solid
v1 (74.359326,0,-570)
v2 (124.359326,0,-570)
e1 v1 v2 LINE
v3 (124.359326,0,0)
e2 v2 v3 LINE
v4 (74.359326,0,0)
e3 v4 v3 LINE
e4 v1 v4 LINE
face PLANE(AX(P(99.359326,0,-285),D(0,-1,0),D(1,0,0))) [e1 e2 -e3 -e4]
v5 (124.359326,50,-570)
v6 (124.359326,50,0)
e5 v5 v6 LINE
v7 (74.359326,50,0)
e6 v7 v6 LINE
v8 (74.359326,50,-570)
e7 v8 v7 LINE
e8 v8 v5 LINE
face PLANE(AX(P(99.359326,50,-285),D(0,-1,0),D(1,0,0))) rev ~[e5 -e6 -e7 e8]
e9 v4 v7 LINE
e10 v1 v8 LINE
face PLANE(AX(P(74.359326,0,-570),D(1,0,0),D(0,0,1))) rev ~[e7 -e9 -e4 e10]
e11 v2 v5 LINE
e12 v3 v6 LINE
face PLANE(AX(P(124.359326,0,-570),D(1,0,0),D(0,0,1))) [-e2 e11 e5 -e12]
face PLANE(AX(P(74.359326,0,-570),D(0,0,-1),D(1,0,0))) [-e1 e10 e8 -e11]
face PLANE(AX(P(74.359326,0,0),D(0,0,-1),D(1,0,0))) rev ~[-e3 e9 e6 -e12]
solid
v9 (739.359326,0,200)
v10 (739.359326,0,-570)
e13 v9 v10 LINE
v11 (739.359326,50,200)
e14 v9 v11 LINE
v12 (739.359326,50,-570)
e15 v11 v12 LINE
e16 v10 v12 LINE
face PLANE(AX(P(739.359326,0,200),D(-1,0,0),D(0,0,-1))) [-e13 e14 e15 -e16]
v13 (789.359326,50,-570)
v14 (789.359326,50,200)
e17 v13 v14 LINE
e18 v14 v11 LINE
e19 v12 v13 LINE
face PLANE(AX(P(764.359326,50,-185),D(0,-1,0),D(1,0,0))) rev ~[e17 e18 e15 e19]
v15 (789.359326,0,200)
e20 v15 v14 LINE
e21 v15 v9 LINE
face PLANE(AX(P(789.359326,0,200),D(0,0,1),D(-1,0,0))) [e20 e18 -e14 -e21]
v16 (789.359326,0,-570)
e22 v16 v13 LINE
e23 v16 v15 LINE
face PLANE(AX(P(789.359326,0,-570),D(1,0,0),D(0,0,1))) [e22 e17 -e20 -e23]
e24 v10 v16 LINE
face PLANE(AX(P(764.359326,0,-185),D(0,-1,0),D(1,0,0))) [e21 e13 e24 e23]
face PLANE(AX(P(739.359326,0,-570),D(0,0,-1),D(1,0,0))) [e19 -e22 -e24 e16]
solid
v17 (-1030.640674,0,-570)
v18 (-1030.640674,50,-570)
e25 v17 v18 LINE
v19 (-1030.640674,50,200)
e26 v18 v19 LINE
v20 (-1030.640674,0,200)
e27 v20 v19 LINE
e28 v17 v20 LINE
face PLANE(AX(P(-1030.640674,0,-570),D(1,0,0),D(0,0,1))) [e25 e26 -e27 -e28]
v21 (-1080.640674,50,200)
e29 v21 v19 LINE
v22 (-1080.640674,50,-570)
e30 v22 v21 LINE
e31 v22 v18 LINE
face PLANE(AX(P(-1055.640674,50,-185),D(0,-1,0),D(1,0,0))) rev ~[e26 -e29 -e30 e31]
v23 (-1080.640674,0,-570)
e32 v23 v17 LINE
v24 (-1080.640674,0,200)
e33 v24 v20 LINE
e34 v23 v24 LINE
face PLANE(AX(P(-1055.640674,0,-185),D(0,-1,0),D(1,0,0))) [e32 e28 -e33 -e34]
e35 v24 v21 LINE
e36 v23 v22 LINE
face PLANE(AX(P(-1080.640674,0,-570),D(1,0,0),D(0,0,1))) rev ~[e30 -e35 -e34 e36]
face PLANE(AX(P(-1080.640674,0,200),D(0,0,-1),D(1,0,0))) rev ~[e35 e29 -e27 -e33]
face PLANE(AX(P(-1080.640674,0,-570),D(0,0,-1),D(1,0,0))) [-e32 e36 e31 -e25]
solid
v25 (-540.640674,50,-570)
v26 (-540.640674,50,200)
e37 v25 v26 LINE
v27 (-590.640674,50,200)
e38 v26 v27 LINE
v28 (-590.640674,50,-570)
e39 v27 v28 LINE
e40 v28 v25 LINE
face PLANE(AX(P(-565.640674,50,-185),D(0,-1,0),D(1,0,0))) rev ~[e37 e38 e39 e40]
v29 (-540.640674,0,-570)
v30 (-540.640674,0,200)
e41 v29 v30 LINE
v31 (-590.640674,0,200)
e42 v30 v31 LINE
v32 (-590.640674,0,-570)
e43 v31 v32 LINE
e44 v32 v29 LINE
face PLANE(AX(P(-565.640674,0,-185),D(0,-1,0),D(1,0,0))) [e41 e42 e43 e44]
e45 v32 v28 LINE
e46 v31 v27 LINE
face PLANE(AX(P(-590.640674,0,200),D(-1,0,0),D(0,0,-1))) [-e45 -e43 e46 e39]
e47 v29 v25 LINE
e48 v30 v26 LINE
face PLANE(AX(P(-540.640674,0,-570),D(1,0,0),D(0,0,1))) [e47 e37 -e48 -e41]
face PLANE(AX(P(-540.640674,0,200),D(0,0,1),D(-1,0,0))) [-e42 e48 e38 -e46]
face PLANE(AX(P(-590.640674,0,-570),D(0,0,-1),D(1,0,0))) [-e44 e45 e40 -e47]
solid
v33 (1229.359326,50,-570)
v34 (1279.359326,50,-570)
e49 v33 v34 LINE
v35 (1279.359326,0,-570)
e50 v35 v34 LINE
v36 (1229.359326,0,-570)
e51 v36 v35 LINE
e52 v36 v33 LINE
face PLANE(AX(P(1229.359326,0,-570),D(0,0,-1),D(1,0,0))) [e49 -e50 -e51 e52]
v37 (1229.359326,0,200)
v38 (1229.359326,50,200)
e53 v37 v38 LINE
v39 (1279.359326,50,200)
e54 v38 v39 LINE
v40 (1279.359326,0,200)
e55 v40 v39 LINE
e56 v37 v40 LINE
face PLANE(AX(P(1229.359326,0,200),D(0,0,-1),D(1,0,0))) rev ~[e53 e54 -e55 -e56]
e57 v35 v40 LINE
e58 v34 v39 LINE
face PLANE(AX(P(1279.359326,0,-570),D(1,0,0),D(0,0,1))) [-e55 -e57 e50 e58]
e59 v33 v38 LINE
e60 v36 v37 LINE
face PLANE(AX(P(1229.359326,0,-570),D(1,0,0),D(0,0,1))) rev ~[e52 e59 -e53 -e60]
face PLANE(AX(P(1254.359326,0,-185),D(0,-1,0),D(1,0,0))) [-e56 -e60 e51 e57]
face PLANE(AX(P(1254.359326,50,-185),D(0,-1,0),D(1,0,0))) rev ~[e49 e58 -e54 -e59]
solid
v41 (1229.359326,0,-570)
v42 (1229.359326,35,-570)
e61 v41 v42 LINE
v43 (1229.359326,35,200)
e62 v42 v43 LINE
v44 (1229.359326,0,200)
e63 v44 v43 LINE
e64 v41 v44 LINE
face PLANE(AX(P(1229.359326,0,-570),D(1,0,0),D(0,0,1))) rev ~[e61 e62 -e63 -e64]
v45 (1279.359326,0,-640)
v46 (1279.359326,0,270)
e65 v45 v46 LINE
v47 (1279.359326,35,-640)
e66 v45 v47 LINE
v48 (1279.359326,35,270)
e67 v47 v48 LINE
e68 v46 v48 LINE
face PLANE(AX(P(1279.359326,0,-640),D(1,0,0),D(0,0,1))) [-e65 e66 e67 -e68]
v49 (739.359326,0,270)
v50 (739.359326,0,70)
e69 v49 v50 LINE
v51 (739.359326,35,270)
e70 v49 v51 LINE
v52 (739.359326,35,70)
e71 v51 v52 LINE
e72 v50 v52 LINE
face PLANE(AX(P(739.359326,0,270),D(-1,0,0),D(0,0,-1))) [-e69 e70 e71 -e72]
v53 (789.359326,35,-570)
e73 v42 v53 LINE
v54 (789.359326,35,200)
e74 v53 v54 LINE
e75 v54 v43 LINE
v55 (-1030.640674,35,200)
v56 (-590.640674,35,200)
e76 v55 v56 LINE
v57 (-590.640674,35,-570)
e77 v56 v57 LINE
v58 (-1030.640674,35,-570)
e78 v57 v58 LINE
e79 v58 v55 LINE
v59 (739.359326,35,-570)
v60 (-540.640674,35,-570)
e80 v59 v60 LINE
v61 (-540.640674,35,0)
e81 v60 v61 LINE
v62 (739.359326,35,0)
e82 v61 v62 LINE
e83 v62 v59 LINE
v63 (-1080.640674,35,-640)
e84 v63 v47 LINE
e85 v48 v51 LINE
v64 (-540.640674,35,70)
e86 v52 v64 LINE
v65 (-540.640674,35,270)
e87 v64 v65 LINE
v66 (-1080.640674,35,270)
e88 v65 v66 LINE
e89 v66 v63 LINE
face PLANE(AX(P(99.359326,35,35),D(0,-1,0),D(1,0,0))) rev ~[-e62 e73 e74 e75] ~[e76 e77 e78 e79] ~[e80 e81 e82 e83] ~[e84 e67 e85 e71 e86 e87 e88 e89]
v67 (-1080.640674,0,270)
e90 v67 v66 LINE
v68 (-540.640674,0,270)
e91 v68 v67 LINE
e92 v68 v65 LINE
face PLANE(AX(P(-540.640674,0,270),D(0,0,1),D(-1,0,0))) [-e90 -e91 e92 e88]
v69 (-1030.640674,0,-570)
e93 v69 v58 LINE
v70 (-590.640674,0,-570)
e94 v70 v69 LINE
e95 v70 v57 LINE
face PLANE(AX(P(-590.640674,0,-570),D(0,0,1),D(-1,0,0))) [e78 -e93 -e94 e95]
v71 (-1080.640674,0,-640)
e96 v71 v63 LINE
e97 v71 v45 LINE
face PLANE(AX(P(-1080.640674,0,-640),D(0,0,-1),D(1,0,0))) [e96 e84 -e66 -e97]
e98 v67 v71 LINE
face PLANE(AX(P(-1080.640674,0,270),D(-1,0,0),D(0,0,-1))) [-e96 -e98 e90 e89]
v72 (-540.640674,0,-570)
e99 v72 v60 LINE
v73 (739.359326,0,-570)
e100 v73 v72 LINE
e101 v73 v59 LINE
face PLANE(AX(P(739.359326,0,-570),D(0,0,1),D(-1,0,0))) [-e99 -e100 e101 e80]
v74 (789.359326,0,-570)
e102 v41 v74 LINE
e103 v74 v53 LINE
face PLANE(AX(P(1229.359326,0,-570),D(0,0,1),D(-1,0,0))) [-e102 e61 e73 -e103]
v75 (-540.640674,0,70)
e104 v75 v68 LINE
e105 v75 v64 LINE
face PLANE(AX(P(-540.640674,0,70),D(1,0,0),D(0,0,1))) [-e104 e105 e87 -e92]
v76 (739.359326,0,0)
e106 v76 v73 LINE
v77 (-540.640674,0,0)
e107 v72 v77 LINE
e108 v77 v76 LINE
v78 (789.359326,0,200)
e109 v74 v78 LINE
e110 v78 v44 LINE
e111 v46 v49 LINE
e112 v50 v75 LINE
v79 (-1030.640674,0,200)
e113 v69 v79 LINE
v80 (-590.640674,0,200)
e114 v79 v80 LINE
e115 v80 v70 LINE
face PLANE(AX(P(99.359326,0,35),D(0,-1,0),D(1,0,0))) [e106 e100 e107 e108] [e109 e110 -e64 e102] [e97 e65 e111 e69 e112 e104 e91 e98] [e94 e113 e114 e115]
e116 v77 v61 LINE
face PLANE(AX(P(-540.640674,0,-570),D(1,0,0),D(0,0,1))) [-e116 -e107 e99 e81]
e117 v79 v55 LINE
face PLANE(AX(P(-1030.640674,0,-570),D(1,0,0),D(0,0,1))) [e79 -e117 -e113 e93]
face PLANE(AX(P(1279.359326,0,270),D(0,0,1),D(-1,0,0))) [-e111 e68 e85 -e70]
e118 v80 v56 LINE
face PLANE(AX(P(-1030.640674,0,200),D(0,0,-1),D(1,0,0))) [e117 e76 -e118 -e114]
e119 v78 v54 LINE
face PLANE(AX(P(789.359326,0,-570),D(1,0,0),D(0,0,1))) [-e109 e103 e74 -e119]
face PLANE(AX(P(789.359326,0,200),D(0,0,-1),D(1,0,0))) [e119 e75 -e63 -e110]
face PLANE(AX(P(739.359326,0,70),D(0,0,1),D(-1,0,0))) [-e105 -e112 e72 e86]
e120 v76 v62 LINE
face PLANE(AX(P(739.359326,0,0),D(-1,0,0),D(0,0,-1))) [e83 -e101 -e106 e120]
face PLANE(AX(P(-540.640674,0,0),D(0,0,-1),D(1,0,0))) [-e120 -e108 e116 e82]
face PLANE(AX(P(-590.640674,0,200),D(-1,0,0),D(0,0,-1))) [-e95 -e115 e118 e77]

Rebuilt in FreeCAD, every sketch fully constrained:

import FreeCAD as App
import Part
import Sketcher
from FreeCAD import Vector

doc = App.newDocument("Part")
body = doc.addObject("PartDesign::Body", "Body")
body.AllowCompound = True

# Sketch on XZ plane
sketch1 = doc.addObject("Sketcher::SketchObject", "Sketch")
body.addObject(sketch1)
sketch1.AttachmentSupport = (doc.XZ_Plane, [""])
sketch1.MapMode = "FlatFace"
sketch1.addGeometry([
    Part.LineSegment(Vector(74, 0, 0), Vector(74, -570, 0)),  # 0
    Part.LineSegment(Vector(74, -570, 0), Vector(124, -570, 0)),  # 1
    Part.LineSegment(Vector(124, -570, 0), Vector(124, 0, 0)),  # 2
    Part.LineSegment(Vector(124, 0, 0), Vector(74, 0, 0)),  # 3
    Part.LineSegment(Vector(739, 200, 0), Vector(739, -570, 0)),  # 4
    Part.LineSegment(Vector(739, -570, 0), Vector(789, -570, 0)),  # 5
    Part.LineSegment(Vector(789, -570, 0), Vector(789, 200, 0)),  # 6
    Part.LineSegment(Vector(789, 200, 0), Vector(739, 200, 0)),  # 7
    Part.LineSegment(Vector(1229, 200, 0), Vector(1229, -570, 0)),  # 8
    Part.LineSegment(Vector(1229, -570, 0), Vector(1279, -570, 0)),  # 9
    Part.LineSegment(Vector(1279, -570, 0), Vector(1279, 200, 0)),  # 10
    Part.LineSegment(Vector(1279, 200, 0), Vector(1229, 200, 0)),  # 11
    Part.LineSegment(Vector(-541, 200, 0), Vector(-591, 200, 0)),  # 12
    Part.LineSegment(Vector(-591, 200, 0), Vector(-591, -570, 0)),  # 13
    Part.LineSegment(Vector(-591, -570, 0), Vector(-541, -570, 0)),  # 14
    Part.LineSegment(Vector(-541, -570, 0), Vector(-541, 200, 0)),  # 15
    Part.LineSegment(Vector(-1081, 200, 0), Vector(-1081, -570, 0)),  # 16
    Part.LineSegment(Vector(-1081, -570, 0), Vector(-1031, -570, 0)),  # 17
    Part.LineSegment(Vector(-1031, -570, 0), Vector(-1031, 200, 0)),  # 18
    Part.LineSegment(Vector(-1031, 200, 0), Vector(-1081, 200, 0)),  # 19
], False)
sketch1.addConstraint([
    Sketcher.Constraint("Coincident", 0, 2, 1, 1),
    Sketcher.Constraint("Coincident", 1, 2, 2, 1),
    Sketcher.Constraint("Coincident", 2, 2, 3, 1),
    Sketcher.Constraint("Coincident", 3, 2, 0, 1),
    Sketcher.Constraint("Coincident", 4, 2, 5, 1),
    Sketcher.Constraint("Coincident", 5, 2, 6, 1),
    Sketcher.Constraint("Coincident", 6, 2, 7, 1),
    Sketcher.Constraint("Coincident", 7, 2, 4, 1),
    Sketcher.Constraint("Coincident", 8, 2, 9, 1),
    Sketcher.Constraint("Coincident", 9, 2, 10, 1),
    Sketcher.Constraint("Coincident", 10, 2, 11, 1),
    Sketcher.Constraint("Coincident", 11, 2, 8, 1),
    Sketcher.Constraint("Coincident", 12, 2, 13, 1),
    Sketcher.Constraint("Coincident", 13, 2, 14, 1),
    Sketcher.Constraint("Coincident", 14, 2, 15, 1),
    Sketcher.Constraint("Coincident", 15, 2, 12, 1),
    Sketcher.Constraint("Coincident", 16, 2, 17, 1),
    Sketcher.Constraint("Coincident", 17, 2, 18, 1),
    Sketcher.Constraint("Coincident", 18, 2, 19, 1),
    Sketcher.Constraint("Coincident", 19, 2, 16, 1),
    Sketcher.Constraint("Vertical", 0),
    Sketcher.Constraint("Horizontal", 1),
    Sketcher.Constraint("Vertical", 2),
    Sketcher.Constraint("Horizontal", 3),
    Sketcher.Constraint("Vertical", 4),
    Sketcher.Constraint("Horizontal", 5),
    Sketcher.Constraint("Vertical", 6),
    Sketcher.Constraint("Horizontal", 7),
    Sketcher.Constraint("Vertical", 8),
    Sketcher.Constraint("Horizontal", 9),
    Sketcher.Constraint("Vertical", 10),
    Sketcher.Constraint("Horizontal", 11),
    Sketcher.Constraint("Horizontal", 12),
    Sketcher.Constraint("Vertical", 13),
    Sketcher.Constraint("Horizontal", 14),
    Sketcher.Constraint("Vertical", 15),
    Sketcher.Constraint("Vertical", 16),
    Sketcher.Constraint("Horizontal", 17),
    Sketcher.Constraint("Vertical", 18),
    Sketcher.Constraint("Horizontal", 19),
    Sketcher.Constraint("PointOnObject", 2, 2, -1),
    Sketcher.Constraint("Horizontal", 1, 2, 4, 2),
    Sketcher.Constraint("Horizontal", 5, 2, 8, 2),
    Sketcher.Constraint("Horizontal", 7, 2, 10, 2),
    Sketcher.Constraint("Horizontal", 11, 2, 12, 2),
    Sketcher.Constraint("Horizontal", 9, 2, 13, 2),
    Sketcher.Constraint("Horizontal", 14, 2, 16, 2),
    Sketcher.Constraint("Horizontal", 15, 2, 18, 2),
    Sketcher.Constraint("Equal", 3, 5),
    Sketcher.Constraint("Equal", 7, 9),
    Sketcher.Constraint("Equal", 11, 12),
    Sketcher.Constraint("Equal", 14, 17),
    Sketcher.Constraint("DistanceX", 1, 1, 1, 2, 50.0),
    Sketcher.Constraint("DistanceY", 0, 2, 0, 1, 570.0),
    Sketcher.Constraint("DistanceY", 4, 2, 4, 1, 770.0),
    Sketcher.Constraint("DistanceX", 1, 2, 4, 2, 615.0),
    Sketcher.Constraint("DistanceX", 5, 2, 8, 2, 440.0),
    Sketcher.Constraint("DistanceX", 12, 2, 3, 2, 665.0),
    Sketcher.Constraint("DistanceX", 16, 2, 13, 2, 490.0),
    Sketcher.Constraint("DistanceX", -1, 1, 0, 2, 74.359326),
])
pad1 = doc.addObject("PartDesign::Pad", "Pad")
body.addObject(pad1)
pad1.Profile = sketch1
pad1.Length = 50
pad1.Reversed = True
body2 = doc.addObject("PartDesign::Body", "Body001")

# Sketch on XZ plane
sketch2 = doc.addObject("Sketcher::SketchObject", "Sketch001")
body2.addObject(sketch2)
sketch2.AttachmentSupport = (doc.getObject("XZ_Plane001"), [""])
sketch2.MapMode = "FlatFace"
sketch2.addGeometry([
    Part.LineSegment(Vector(739, 70, 0), Vector(-541, 70, 0)),  # 0
    Part.LineSegment(Vector(-541, 70, 0), Vector(-541, 270, 0)),  # 1
    Part.LineSegment(Vector(-541, 270, 0), Vector(-1081, 270, 0)),  # 2
    Part.LineSegment(Vector(-1081, 270, 0), Vector(-1081, -640, 0)),  # 3
    Part.LineSegment(Vector(-1081, -640, 0), Vector(1279, -640, 0)),  # 4
    Part.LineSegment(Vector(1279, -640, 0), Vector(1279, 270, 0)),  # 5
    Part.LineSegment(Vector(1279, 270, 0), Vector(739, 270, 0)),  # 6
    Part.LineSegment(Vector(739, 270, 0), Vector(739, 70, 0)),  # 7
    Part.LineSegment(Vector(1229, -570, 0), Vector(789, -570, 0)),  # 8
    Part.LineSegment(Vector(789, -570, 0), Vector(789, 200, 0)),  # 9
    Part.LineSegment(Vector(789, 200, 0), Vector(1229, 200, 0)),  # 10
    Part.LineSegment(Vector(1229, 200, 0), Vector(1229, -570, 0)),  # 11
    Part.LineSegment(Vector(-1031, 200, 0), Vector(-591, 200, 0)),  # 12
    Part.LineSegment(Vector(-591, 200, 0), Vector(-591, -570, 0)),  # 13
    Part.LineSegment(Vector(-591, -570, 0), Vector(-1031, -570, 0)),  # 14
    Part.LineSegment(Vector(-1031, -570, 0), Vector(-1031, 200, 0)),  # 15
    Part.LineSegment(Vector(-541, -570, 0), Vector(-541, 0, 0)),  # 16
    Part.LineSegment(Vector(-541, 0, 0), Vector(739, 0, 0)),  # 17
    Part.LineSegment(Vector(739, 0, 0), Vector(739, -570, 0)),  # 18
    Part.LineSegment(Vector(739, -570, 0), Vector(-541, -570, 0)),  # 19
], False)
sketch2.addConstraint([
    Sketcher.Constraint("Coincident", 0, 2, 1, 1),
    Sketcher.Constraint("Coincident", 1, 2, 2, 1),
    Sketcher.Constraint("Coincident", 2, 2, 3, 1),
    Sketcher.Constraint("Coincident", 3, 2, 4, 1),
    Sketcher.Constraint("Coincident", 4, 2, 5, 1),
    Sketcher.Constraint("Coincident", 5, 2, 6, 1),
    Sketcher.Constraint("Coincident", 6, 2, 7, 1),
    Sketcher.Constraint("Coincident", 7, 2, 0, 1),
    Sketcher.Constraint("Coincident", 8, 2, 9, 1),
    Sketcher.Constraint("Coincident", 9, 2, 10, 1),
    Sketcher.Constraint("Coincident", 10, 2, 11, 1),
    Sketcher.Constraint("Coincident", 11, 2, 8, 1),
    Sketcher.Constraint("Coincident", 12, 2, 13, 1),
    Sketcher.Constraint("Coincident", 13, 2, 14, 1),
    Sketcher.Constraint("Coincident", 14, 2, 15, 1),
    Sketcher.Constraint("Coincident", 15, 2, 12, 1),
    Sketcher.Constraint("Coincident", 16, 2, 17, 1),
    Sketcher.Constraint("Coincident", 17, 2, 18, 1),
    Sketcher.Constraint("Coincident", 18, 2, 19, 1),
    Sketcher.Constraint("Coincident", 19, 2, 16, 1),
    Sketcher.Constraint("Horizontal", 0),
    Sketcher.Constraint("Vertical", 1),
    Sketcher.Constraint("Horizontal", 2),
    Sketcher.Constraint("Vertical", 3),
    Sketcher.Constraint("Horizontal", 4),
    Sketcher.Constraint("Vertical", 5),
    Sketcher.Constraint("Horizontal", 6),
    Sketcher.Constraint("Vertical", 7),
    Sketcher.Constraint("Horizontal", 8),
    Sketcher.Constraint("Vertical", 9),
    Sketcher.Constraint("Horizontal", 10),
    Sketcher.Constraint("Vertical", 11),
    Sketcher.Constraint("Horizontal", 12),
    Sketcher.Constraint("Vertical", 13),
    Sketcher.Constraint("Horizontal", 14),
    Sketcher.Constraint("Vertical", 15),
    Sketcher.Constraint("Vertical", 16),
    Sketcher.Constraint("Horizontal", 17),
    Sketcher.Constraint("Vertical", 18),
    Sketcher.Constraint("Horizontal", 19),
    Sketcher.Constraint("PointOnObject", 16, 2, -1),
    Sketcher.Constraint("Horizontal", 2, 2, 5, 2),
    Sketcher.Constraint("Horizontal", 10, 2, 12, 2),
    Sketcher.Constraint("Horizontal", 11, 2, 13, 2),
    Sketcher.Constraint("Horizontal", 14, 2, 18, 2),
    Sketcher.Constraint("Vertical", 1, 2, 16, 2),
    Sketcher.Constraint("Vertical", 7, 2, 17, 2),
    Sketcher.Constraint("Equal", 2, 6),
    Sketcher.Constraint("Equal", 10, 12),
    Sketcher.Constraint("DistanceX", 0, 2, 0, 1, 1280.0),
    Sketcher.Constraint("DistanceX", 2, 2, 2, 1, 540.0),
    Sketcher.Constraint("DistanceX", 8, 2, 8, 1, 440.0),
    Sketcher.Constraint("DistanceY", 1, 1, 1, 2, 200.0),
    Sketcher.Constraint("DistanceY", 3, 2, 3, 1, 910.0),
    Sketcher.Constraint("DistanceY", 9, 1, 9, 2, 770.0),
    Sketcher.Constraint("DistanceY", 16, 1, 16, 2, 570.0),
    Sketcher.Constraint("DistanceY", -1, 1, 0, 2, 70.0),
    Sketcher.Constraint("DistanceX", 8, 2, 4, 2, 490.0),
    Sketcher.Constraint("DistanceX", 12, 2, 1, 2, 50.0),
    Sketcher.Constraint("DistanceX", 0, 2, -1, 1, 540.640674),
])
pad2 = doc.addObject("PartDesign::Pad", "Pad001")
body2.addObject(pad2)
pad2.Profile = sketch2
pad2.Length = 35
pad2.Reversed = True

doc.recompute()
